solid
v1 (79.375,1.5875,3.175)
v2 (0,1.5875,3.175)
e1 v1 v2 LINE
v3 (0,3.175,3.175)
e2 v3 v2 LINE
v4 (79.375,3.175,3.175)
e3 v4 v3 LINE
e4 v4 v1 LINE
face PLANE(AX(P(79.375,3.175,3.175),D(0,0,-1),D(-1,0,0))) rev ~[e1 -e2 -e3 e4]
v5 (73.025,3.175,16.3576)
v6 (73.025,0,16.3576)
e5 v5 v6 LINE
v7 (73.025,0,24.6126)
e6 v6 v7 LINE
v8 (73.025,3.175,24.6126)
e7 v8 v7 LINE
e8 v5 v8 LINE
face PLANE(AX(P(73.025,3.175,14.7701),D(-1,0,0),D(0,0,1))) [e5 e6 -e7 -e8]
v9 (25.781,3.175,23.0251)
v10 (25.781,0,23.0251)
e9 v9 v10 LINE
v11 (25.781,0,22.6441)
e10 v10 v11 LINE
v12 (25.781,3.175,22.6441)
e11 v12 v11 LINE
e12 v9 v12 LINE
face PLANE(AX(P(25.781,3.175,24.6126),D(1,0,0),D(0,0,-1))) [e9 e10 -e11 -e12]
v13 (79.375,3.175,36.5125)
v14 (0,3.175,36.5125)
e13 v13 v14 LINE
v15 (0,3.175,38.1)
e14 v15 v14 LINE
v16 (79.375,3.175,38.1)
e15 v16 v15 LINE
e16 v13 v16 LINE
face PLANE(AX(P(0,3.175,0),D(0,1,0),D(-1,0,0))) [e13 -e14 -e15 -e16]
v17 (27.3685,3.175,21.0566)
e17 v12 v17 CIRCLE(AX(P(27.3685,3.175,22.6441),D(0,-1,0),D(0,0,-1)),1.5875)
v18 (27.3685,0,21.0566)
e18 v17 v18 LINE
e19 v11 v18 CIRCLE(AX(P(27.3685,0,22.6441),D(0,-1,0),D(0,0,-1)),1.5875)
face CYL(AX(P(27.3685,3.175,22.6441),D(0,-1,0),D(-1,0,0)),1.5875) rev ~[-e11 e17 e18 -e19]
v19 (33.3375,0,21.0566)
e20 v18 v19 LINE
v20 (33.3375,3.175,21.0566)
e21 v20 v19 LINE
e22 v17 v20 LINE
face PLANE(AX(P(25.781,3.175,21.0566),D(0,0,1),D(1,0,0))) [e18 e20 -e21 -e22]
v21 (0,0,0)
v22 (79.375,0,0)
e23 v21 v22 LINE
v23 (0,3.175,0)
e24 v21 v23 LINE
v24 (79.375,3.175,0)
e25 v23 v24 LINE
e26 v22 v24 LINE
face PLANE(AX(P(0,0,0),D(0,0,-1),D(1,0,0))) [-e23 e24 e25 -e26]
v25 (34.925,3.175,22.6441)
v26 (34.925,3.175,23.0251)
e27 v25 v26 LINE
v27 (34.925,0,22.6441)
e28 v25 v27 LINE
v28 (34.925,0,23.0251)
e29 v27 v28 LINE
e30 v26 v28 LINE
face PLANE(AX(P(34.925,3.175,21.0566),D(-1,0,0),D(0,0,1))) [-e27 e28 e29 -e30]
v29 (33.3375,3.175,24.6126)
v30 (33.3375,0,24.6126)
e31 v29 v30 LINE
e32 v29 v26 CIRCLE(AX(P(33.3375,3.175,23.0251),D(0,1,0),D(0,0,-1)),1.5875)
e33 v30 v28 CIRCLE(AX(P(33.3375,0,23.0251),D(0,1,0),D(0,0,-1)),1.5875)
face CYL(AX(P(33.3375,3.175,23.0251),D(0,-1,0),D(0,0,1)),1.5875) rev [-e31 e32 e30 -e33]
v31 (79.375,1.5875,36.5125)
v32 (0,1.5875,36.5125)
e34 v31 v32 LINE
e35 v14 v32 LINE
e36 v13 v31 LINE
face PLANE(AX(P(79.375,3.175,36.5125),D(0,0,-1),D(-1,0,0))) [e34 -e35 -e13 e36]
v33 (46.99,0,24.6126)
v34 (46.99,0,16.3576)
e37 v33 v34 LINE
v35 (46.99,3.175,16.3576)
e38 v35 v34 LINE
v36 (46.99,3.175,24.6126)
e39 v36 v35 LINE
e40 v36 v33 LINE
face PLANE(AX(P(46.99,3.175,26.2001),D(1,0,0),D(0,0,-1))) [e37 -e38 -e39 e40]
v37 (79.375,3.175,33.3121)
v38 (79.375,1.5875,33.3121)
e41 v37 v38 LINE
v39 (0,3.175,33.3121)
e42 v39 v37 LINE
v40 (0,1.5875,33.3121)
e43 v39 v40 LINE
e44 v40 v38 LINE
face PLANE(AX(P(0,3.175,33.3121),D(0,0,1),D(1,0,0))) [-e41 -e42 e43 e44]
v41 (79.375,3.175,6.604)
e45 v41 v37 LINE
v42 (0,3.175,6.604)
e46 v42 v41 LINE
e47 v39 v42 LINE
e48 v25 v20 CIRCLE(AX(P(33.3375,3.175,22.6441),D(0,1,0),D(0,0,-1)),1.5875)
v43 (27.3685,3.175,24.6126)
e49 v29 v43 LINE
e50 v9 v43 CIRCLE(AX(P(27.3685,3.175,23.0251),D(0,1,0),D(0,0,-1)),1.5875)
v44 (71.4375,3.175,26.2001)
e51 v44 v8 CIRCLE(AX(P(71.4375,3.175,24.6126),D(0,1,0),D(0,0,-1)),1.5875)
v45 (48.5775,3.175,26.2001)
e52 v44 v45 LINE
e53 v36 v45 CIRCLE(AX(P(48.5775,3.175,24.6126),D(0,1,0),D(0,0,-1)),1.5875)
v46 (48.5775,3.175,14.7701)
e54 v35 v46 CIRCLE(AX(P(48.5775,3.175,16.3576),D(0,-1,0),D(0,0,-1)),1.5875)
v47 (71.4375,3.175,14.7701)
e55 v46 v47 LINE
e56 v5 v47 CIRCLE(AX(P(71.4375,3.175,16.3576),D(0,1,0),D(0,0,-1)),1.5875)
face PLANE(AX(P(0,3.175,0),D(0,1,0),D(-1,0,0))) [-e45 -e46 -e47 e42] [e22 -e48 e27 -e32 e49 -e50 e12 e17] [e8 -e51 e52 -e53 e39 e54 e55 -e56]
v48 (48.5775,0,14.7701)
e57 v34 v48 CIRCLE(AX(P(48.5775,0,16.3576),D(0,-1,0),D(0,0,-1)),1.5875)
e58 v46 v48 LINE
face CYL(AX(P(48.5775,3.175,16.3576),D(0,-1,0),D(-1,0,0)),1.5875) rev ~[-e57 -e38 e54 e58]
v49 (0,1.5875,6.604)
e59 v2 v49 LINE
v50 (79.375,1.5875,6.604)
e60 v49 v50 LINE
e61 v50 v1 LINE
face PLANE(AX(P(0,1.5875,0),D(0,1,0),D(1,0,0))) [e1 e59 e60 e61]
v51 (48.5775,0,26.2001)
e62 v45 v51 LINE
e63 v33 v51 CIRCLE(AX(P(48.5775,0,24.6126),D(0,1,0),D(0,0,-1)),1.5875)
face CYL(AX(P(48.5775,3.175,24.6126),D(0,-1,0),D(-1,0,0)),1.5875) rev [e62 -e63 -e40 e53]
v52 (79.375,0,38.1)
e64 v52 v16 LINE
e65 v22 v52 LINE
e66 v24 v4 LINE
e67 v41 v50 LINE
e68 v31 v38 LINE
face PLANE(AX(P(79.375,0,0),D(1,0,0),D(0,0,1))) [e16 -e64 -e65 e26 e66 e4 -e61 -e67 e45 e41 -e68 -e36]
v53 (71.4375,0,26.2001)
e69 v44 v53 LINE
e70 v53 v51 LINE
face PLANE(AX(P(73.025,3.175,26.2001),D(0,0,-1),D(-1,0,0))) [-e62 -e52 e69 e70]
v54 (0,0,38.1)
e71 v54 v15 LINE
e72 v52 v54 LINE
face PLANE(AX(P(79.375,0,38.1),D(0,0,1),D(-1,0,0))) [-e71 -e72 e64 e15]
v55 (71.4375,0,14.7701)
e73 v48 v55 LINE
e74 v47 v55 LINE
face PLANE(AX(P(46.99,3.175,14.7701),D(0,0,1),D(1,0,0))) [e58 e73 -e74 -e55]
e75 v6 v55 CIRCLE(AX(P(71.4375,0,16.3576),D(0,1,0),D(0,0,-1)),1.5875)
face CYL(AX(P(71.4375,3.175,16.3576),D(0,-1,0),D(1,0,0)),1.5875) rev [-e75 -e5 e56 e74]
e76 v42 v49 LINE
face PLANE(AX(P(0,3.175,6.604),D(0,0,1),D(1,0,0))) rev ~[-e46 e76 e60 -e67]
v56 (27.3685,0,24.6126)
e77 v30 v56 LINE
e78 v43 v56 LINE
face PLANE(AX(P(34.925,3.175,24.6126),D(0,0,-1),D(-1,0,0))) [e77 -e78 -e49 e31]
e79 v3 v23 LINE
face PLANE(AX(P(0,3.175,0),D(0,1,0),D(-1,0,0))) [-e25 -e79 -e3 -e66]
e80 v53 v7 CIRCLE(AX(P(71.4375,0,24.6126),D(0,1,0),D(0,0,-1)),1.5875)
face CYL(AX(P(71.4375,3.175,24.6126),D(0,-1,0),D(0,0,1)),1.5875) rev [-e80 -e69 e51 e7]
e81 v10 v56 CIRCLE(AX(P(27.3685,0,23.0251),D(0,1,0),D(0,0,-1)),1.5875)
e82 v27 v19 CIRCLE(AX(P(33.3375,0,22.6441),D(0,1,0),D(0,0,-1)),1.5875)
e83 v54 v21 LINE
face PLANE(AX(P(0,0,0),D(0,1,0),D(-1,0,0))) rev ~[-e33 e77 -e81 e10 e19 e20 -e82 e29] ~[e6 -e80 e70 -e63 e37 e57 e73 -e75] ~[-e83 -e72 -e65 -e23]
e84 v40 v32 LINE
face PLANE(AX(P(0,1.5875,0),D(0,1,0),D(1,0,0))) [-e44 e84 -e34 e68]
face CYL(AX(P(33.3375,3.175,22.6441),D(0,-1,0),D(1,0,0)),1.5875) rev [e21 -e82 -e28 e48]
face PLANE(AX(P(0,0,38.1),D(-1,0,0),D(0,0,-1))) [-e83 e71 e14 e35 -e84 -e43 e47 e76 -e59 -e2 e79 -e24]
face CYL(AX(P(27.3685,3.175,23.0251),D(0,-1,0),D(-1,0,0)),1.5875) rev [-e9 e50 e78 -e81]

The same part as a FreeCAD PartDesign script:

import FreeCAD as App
import Part
import Sketcher

V = App.Vector
Q = App.Units.Quantity


def edges_at(feature, points):
    """Names of the edges that pass closest to the given points."""
    edges = feature.Shape.Edges
    near = lambda p: min(range(len(edges)), key=lambda i: edges[i].distToShape(Part.Vertex(*p))[0])
    return sorted({f"Edge{near(p) + 1}" for p in points})

doc = App.newDocument("Part")
body = doc.addObject("PartDesign::Body", "Body")

sketch1 = body.newObject("Sketcher::SketchObject", "Sketch")
sketch1.AttachmentSupport = (doc.getObject("XZ_Plane"), [""])
sketch1.MapMode = "FlatFace"
sketch1.addGeometry(Part.LineSegment(V(79.375, 0, 0), V(0, 0, 0)), False)
sketch1.addGeometry(Part.LineSegment(V(0, 0, 0), V(0, 38.1, 0)), False)
sketch1.addGeometry(Part.LineSegment(V(0, 38.1, 0), V(79.375, 38.1, 0)), False)
sketch1.addGeometry(Part.LineSegment(V(79.375, 38.1, 0), V(79.375, 0, 0)), False)
sketch1.addConstraint(Sketcher.Constraint("Coincident", 0, 2, 1, 1))
sketch1.addConstraint(Sketcher.Constraint("Coincident", 1, 2, 2, 1))
sketch1.addConstraint(Sketcher.Constraint("Coincident", 2, 2, 3, 1))
sketch1.addConstraint(Sketcher.Constraint("Coincident", 3, 2, 0, 1))
sketch1.addConstraint(Sketcher.Constraint("Horizontal", 0))
sketch1.addConstraint(Sketcher.Constraint("Vertical", 1))
sketch1.addConstraint(Sketcher.Constraint("Horizontal", 2))
sketch1.addConstraint(Sketcher.Constraint("Vertical", 3))
sketch1.addConstraint(Sketcher.Constraint("Coincident", 0, 2, -1, 1))
sketch1.addConstraint(Sketcher.Constraint("DistanceY", 1, 1, 1, 2, Q("1.5 in")))
sketch1.addConstraint(Sketcher.Constraint("DistanceX", 0, 2, 0, 1, Q("3.125 in")))
pad1 = body.newObject("PartDesign::Pad", "Pad")
pad1.Profile = sketch1
pad1.Length = Q("0.125 in")
pad1.Reversed = True

sketch2 = body.newObject("Sketcher::SketchObject", "Sketch001")
sketch2.AttachmentSupport = (doc.getObject("XZ_Plane"), [""])
sketch2.MapMode = "FlatFace"
sketch2.AttachmentOffset = App.Placement(V(0, 0, -0.125 * 25.4), App.Rotation())
sketch2.addGeometry(Part.LineSegment(V(79.375, 3.175, 0), V(0, 3.175, 0)), False)
sketch2.addGeometry(Part.LineSegment(V(0, 3.175, 0), V(0, 6.604, 0)), False)
sketch2.addGeometry(Part.LineSegment(V(0, 6.604, 0), V(79.375, 6.604, 0)), False)
sketch2.addGeometry(Part.LineSegment(V(79.375, 6.604, 0), V(79.375, 3.175, 0)), False)
sketch2.addGeometry(Part.LineSegment(V(79.375, 33.3121, 0), V(0, 33.3121, 0)), False)
sketch2.addGeometry(Part.LineSegment(V(0, 33.3121, 0), V(0, 36.5125, 0)), False)
sketch2.addGeometry(Part.LineSegment(V(0, 36.5125, 0), V(79.375, 36.5125, 0)), False)
sketch2.addGeometry(Part.LineSegment(V(79.375, 36.5125, 0), V(79.375, 33.3121, 0)), False)
sketch2.addConstraint(Sketcher.Constraint("Coincident", 0, 2, 1, 1))
sketch2.addConstraint(Sketcher.Constraint("Coincident", 1, 2, 2, 1))
sketch2.addConstraint(Sketcher.Constraint("Coincident", 2, 2, 3, 1))
sketch2.addConstraint(Sketcher.Constraint("Coincident", 3, 2, 0, 1))
sketch2.addConstraint(Sketcher.Constraint("Coincident", 4, 2, 5, 1))
sketch2.addConstraint(Sketcher.Constraint("Coincident", 5, 2, 6, 1))
sketch2.addConstraint(Sketcher.Constraint("Coincident", 6, 2, 7, 1))
sketch2.addConstraint(Sketcher.Constraint("Coincident", 7, 2, 4, 1))
sketch2.addConstraint(Sketcher.Constraint("Horizontal", 0))
sketch2.addConstraint(Sketcher.Constraint("Vertical", 1))
sketch2.addConstraint(Sketcher.Constraint("Horizontal", 2))
sketch2.addConstraint(Sketcher.Constraint("Vertical", 3))
sketch2.addConstraint(Sketcher.Constraint("Horizontal", 4))
sketch2.addConstraint(Sketcher.Constraint("Vertical", 5))
sketch2.addConstraint(Sketcher.Constraint("Horizontal", 6))
sketch2.addConstraint(Sketcher.Constraint("Vertical", 7))
sketch2.addConstraint(Sketcher.Constraint("PointOnObject", 0, 2, -2))
sketch2.addConstraint(Sketcher.Constraint("PointOnObject", 4, 2, -2))
sketch2.addConstraint(Sketcher.Constraint("Vertical", 3, 2, 6, 2))
sketch2.addConstraint(Sketcher.Constraint("DistanceY", 1, 1, 1, 2, Q("0.135 in")))
sketch2.addConstraint(Sketcher.Constraint("DistanceY", 5, 1, 5, 2, Q("0.126 in")))
sketch2.addConstraint(Sketcher.Constraint("DistanceY", -1, 1, 0, 2, Q("0.125 in")))
sketch2.addConstraint(Sketcher.Constraint("DistanceX", 0, 2, 0, 1, Q("3.125 in")))
sketch2.addConstraint(Sketcher.Constraint("DistanceY", -1, 1, 5, 2, Q("1.4375 in")))
pocket1 = body.newObject("PartDesign::Pocket", "Pocket")
pocket1.Profile = sketch2
pocket1.Length = Q("0.0625 in")
pocket1.Reversed = True

sketch3 = body.newObject("Sketcher::SketchObject", "Sketch002")
sketch3.AttachmentSupport = (doc.getObject("XZ_Plane"), [""])
sketch3.MapMode = "FlatFace"
sketch3.AttachmentOffset = App.Placement(V(0, 0, -0.125 * 25.4), App.Rotation())
sketch3.addGeometry(Part.LineSegment(V(34.925, 21.0566, 0), V(25.781, 21.0566, 0)), False)
sketch3.addGeometry(Part.LineSegment(V(25.781, 21.0566, 0), V(25.781, 24.6126, 0)), False)
sketch3.addGeometry(Part.LineSegment(V(25.781, 24.6126, 0), V(34.925, 24.6126, 0)), False)
sketch3.addGeometry(Part.LineSegment(V(34.925, 24.6126, 0), V(34.925, 21.0566, 0)), False)
sketch3.addGeometry(Part.LineSegment(V(73.025, 14.7701, 0), V(46.99, 14.7701, 0)), False)
sketch3.addGeometry(Part.LineSegment(V(46.99, 14.7701, 0), V(46.99, 26.2001, 0)), False)
sketch3.addGeometry(Part.LineSegment(V(46.99, 26.2001, 0), V(73.025, 26.2001, 0)), False)
sketch3.addGeometry(Part.LineSegment(V(73.025, 26.2001, 0), V(73.025, 14.7701, 0)), False)
sketch3.addConstraint(Sketcher.Constraint("Coincident", 0, 2, 1, 1))
sketch3.addConstraint(Sketcher.Constraint("Coincident", 1, 2, 2, 1))
sketch3.addConstraint(Sketcher.Constraint("Coincident", 2, 2, 3, 1))
sketch3.addConstraint(Sketcher.Constraint("Coincident", 3, 2, 0, 1))
sketch3.addConstraint(Sketcher.Constraint("Coincident", 4, 2, 5, 1))
sketch3.addConstraint(Sketcher.Constraint("Coincident", 5, 2, 6, 1))
sketch3.addConstraint(Sketcher.Constraint("Coincident", 6, 2, 7, 1))
sketch3.addConstraint(Sketcher.Constraint("Coincident", 7, 2, 4, 1))
sketch3.addConstraint(Sketcher.Constraint("Horizontal", 0))
sketch3.addConstraint(Sketcher.Constraint("Vertical", 1))
sketch3.addConstraint(Sketcher.Constraint("Horizontal", 2))
sketch3.addConstraint(Sketcher.Constraint("Vertical", 3))
sketch3.addConstraint(Sketcher.Constraint("Horizontal", 4))
sketch3.addConstraint(Sketcher.Constraint("Vertical", 5))
sketch3.addConstraint(Sketcher.Constraint("Horizontal", 6))
sketch3.addConstraint(Sketcher.Constraint("Vertical", 7))
sketch3.addConstraint(Sketcher.Constraint("DistanceX", 0, 2, 0, 1, Q("0.36 in")))
sketch3.addConstraint(Sketcher.Constraint("DistanceY", 1, 1, 1, 2, Q("0.14 in")))
sketch3.addConstraint(Sketcher.Constraint("DistanceY", 5, 1, 5, 2, Q("0.45 in")))
sketch3.addConstraint(Sketcher.Constraint("DistanceX", 4, 2, 4, 1, Q("1.025 in")))
sketch3.addConstraint(Sketcher.Constraint("DistanceX", 2, 2, 6, 2, Q("1.5 in")))
sketch3.addConstraint(Sketcher.Constraint("DistanceX", -1, 1, 4, 2, Q("1.85 in")))
sketch3.addConstraint(Sketcher.Constraint("DistanceY", -1, 1, 0, 2, Q("0.829 in")))
sketch3.addConstraint(Sketcher.Constraint("DistanceY", 2, 2, 5, 2, Q("0.0625 in")))
pocket2 = body.newObject("PartDesign::Pocket", "Pocket001")
pocket2.Profile = sketch3
pocket2.Length = Q("1 in")
pocket2.Reversed = True
doc.recompute()

fillet = body.newObject("PartDesign::Fillet", "Fillet")
fillet.Base = (pocket2, edges_at(pocket2, [
    (25.781, 1.587, 21.057),
    (25.781, 1.587, 24.613),
    (34.925, 1.587, 24.613),
    (34.925, 1.587, 21.057),
]))
fillet.Radius = Q("0.0625 in")
doc.recompute()

fillet2 = body.newObject("PartDesign::Fillet", "Fillet001")
fillet2.Base = (fillet, edges_at(fillet, [
    (73.025, 1.587, 14.77),
    (73.025, 1.587, 26.2),
    (46.99, 1.587, 26.2),
    (46.99, 1.587, 14.77),
]))
fillet2.Radius = Q("0.0625 in")

doc.recompute()
